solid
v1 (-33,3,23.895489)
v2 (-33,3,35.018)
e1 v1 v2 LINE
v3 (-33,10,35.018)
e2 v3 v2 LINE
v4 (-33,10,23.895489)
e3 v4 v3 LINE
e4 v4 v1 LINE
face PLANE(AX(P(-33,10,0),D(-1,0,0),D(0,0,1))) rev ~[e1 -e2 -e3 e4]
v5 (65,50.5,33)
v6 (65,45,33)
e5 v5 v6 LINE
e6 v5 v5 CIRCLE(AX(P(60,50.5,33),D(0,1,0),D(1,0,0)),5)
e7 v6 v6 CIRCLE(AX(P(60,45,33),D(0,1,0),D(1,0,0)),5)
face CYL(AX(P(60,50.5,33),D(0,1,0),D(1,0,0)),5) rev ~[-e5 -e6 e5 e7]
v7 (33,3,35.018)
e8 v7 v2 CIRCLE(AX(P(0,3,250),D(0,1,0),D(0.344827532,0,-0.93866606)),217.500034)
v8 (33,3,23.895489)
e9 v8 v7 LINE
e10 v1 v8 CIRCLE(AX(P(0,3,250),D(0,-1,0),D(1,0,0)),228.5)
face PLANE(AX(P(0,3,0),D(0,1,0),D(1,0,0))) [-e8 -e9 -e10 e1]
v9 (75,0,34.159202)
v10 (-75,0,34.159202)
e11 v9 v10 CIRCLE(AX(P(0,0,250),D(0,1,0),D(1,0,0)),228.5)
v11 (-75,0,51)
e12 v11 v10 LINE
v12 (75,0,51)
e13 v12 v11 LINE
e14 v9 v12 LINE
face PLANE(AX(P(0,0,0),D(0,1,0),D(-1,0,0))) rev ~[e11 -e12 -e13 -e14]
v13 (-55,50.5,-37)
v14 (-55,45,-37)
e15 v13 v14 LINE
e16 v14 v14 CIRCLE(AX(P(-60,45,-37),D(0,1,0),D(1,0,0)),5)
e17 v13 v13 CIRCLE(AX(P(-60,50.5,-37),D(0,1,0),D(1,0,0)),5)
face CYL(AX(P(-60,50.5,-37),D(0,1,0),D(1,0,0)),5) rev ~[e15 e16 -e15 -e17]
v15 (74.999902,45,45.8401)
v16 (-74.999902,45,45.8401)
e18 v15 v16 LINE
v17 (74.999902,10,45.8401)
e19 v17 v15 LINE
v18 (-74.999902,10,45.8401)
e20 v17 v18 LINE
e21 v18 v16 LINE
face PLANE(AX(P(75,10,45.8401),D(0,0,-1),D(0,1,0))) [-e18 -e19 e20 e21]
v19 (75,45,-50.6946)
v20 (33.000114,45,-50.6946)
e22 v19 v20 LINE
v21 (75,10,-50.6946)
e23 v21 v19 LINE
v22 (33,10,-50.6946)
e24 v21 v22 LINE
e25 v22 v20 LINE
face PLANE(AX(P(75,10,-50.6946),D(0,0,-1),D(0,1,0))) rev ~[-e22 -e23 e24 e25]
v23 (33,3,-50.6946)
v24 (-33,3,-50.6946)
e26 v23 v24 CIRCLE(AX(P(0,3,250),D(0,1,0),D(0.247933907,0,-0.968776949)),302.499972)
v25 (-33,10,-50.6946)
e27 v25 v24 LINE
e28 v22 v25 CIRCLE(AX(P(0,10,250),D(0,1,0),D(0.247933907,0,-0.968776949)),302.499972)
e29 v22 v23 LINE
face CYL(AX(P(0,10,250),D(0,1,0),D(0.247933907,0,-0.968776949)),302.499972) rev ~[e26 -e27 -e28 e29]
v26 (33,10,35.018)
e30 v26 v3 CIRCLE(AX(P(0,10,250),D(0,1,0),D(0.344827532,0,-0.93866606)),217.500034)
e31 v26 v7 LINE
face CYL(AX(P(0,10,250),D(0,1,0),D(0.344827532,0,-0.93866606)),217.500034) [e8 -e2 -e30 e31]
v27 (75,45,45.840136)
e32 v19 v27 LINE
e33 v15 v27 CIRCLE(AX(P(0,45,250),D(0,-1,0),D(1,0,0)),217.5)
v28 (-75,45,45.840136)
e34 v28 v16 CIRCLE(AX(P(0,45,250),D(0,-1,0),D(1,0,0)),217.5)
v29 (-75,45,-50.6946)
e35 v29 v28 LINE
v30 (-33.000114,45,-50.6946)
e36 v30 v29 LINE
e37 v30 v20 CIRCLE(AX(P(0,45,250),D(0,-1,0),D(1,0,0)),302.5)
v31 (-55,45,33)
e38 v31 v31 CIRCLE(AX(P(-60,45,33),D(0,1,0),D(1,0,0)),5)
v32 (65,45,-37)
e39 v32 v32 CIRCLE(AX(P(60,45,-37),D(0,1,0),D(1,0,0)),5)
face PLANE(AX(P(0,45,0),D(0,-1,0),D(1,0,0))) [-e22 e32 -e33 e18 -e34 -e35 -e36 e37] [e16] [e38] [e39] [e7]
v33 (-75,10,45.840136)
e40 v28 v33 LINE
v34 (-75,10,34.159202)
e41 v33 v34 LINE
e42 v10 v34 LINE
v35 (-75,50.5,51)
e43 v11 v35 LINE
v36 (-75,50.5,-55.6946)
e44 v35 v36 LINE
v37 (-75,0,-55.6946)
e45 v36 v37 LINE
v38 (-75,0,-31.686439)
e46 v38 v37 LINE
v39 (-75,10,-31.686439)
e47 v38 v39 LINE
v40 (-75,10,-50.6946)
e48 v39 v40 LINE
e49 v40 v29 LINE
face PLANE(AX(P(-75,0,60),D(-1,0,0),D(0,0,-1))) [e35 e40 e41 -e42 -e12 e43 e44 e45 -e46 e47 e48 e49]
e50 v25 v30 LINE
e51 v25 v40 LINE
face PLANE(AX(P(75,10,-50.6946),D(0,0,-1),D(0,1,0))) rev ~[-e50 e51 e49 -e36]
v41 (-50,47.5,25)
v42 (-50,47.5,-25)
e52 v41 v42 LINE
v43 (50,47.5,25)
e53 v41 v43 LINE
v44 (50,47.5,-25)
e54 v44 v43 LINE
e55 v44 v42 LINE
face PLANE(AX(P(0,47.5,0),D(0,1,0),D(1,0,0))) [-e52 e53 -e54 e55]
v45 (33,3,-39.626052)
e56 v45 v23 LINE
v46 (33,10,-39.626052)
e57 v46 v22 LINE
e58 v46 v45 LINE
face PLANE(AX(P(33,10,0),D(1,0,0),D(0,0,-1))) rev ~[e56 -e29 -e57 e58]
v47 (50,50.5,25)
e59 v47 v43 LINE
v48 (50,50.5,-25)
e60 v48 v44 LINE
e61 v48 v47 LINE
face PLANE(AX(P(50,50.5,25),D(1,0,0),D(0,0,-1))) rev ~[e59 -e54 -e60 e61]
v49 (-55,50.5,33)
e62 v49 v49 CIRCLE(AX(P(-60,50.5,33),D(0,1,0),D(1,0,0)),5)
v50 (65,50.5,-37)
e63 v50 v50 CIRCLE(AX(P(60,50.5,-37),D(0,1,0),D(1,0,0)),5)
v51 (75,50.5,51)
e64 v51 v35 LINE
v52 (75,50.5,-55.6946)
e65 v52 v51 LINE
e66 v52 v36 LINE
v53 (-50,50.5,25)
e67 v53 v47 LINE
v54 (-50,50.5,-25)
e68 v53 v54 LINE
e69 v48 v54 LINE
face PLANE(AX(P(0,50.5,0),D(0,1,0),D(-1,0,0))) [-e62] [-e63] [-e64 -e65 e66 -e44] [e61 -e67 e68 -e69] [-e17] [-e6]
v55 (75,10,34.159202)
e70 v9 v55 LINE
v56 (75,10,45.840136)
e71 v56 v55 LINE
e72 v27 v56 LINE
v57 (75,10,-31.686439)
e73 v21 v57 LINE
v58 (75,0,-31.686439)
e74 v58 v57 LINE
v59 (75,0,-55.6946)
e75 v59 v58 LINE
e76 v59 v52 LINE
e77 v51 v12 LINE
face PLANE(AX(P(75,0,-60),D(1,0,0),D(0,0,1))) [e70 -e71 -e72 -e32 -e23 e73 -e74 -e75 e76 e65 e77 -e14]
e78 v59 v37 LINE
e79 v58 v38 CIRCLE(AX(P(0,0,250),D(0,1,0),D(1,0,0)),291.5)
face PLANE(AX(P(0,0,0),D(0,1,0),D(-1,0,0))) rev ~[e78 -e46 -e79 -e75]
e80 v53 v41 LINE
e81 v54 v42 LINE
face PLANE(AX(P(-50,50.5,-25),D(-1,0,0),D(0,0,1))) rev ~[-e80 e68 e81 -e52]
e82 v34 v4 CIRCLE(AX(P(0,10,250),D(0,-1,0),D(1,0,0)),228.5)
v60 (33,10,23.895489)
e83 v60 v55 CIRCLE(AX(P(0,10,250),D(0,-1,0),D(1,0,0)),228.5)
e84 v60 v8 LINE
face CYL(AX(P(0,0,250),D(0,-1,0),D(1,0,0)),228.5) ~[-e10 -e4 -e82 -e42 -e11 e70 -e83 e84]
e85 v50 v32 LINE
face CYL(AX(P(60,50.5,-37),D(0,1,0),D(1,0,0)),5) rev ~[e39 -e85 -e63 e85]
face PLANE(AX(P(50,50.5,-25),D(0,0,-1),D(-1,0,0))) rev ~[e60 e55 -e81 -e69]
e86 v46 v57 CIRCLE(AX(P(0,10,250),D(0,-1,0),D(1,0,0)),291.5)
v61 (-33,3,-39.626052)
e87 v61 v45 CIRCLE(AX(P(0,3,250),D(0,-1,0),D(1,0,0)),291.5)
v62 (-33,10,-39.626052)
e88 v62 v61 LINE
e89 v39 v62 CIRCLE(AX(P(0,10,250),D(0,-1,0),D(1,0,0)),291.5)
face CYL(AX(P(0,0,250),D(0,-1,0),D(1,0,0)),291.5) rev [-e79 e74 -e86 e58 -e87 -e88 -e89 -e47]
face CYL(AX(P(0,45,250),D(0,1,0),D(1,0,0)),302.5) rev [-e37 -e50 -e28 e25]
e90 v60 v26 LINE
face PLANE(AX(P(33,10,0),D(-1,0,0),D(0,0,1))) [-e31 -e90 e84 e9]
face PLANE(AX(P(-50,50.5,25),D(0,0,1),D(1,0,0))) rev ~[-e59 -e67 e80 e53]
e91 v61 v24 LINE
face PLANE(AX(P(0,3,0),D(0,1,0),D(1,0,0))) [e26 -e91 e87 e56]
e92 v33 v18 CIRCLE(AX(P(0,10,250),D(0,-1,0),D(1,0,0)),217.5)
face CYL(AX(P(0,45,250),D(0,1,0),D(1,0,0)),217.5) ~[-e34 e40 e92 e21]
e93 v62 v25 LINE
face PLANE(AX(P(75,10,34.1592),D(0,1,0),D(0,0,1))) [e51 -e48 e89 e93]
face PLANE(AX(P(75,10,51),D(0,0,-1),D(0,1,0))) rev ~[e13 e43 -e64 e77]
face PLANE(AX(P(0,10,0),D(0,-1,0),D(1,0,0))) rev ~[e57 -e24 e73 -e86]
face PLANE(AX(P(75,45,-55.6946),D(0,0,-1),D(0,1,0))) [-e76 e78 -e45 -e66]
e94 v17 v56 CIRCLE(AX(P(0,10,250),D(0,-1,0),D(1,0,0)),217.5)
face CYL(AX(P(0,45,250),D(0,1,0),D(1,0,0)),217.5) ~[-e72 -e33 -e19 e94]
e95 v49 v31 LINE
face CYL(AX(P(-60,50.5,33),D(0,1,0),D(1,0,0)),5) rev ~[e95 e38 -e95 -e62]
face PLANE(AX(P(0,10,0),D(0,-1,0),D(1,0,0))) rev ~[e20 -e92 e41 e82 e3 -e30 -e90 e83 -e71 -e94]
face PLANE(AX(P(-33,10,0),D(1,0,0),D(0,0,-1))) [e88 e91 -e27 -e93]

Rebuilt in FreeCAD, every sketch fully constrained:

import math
import FreeCAD as App
import Part
import Sketcher


def add_polygon(sketch, points):
    """Adds a closed chain of lines whose ends are joined by coincident constraints."""
    first, n = sketch.GeometryCount, len(points)
    for a, b in zip(points, points[1:] + points[:1]):
        sketch.addGeometry(Part.LineSegment(App.Vector(*a, 0), App.Vector(*b, 0)), False)
    for i in range(n):
        sketch.addConstraint(Sketcher.Constraint("Coincident", first + i, 2, first + (i + 1) % n, 1))

doc = App.newDocument("Part")
params = doc.addObject("Spreadsheet::Sheet", "Params")
for row, (alias, value) in enumerate([
    ("sketch1_width", "150 mm"),
    ("sketch1_height", "120 mm"),
    ("pad1_length", "50.5 mm"),
    ("sketch2_radius", "228.5 mm"),
    ("sketch2_radius2", "291.5 mm"),
    ("pocket1_length", "45 mm"),
    ("sketch3_radius", "302.5 mm"),
    ("sketch3_radius2", "217.5 mm"),
    ("pocket2_length", "35 mm"),
    ("sketch4_height", "50 mm"),
    ("pocket3_length", "3 mm"),
    ("sketch5_radius", "302.5 mm"),
    ("sketch5_radius2", "217.5 mm"),
    ("pocket4_length", "7 mm"),
    ("sketch6_width", "35 mm"),
    ("sketch6_height", "9 mm"),
    ("sketch6_width2", "50.5 mm"),
    ("pocket5_length", "150 mm"),
    ("sketch7_diameter", "10 mm"),
    ("pocket6_length", "10 mm"),
], start=1):
    params.set(f"A{row}", alias)
    params.set(f"B{row}", "=" + value)
    params.setAlias(f"B{row}", alias)

body = doc.addObject("PartDesign::Body", "Body")

# Sketch on XZ plane
sketch1 = body.newObject("Sketcher::SketchObject", "Sketch")
sketch1.AttachmentSupport = (doc.getObject("XZ_Plane"), [""])
sketch1.MapMode = "FlatFace"
add_polygon(sketch1, [(75, -60), (-75, -60), (-75, 60), (75, 60)])  # lines 0-3
sketch1.addConstraint(Sketcher.Constraint("Horizontal", 0))
sketch1.addConstraint(Sketcher.Constraint("Vertical", 1))
sketch1.addConstraint(Sketcher.Constraint("Horizontal", 2))
sketch1.addConstraint(Sketcher.Constraint("Vertical", 3))
sketch1.addConstraint(Sketcher.Constraint("Symmetric", 0, 2, 2, 2, -1, 1))
sketch1.addConstraint(Sketcher.Constraint("DistanceX", 0, 2, 0, 1, 150.0))
sketch1.addConstraint(Sketcher.Constraint("DistanceY", 1, 1, 1, 2, 120.0))
sketch1.setExpression("Constraints[9]", "Params.sketch1_width")
sketch1.setExpression("Constraints[10]", "Params.sketch1_height")
pad1 = body.newObject("PartDesign::Pad", "Pad")
pad1.Profile = sketch1
pad1.setExpression("Length", "Params.pad1_length")
pad1.Reversed = True

# Sketch on XZ plane
sketch2 = body.newObject("Sketcher::SketchObject", "Sketch001")
sketch2.AttachmentSupport = (doc.getObject("XZ_Plane"), [""])
sketch2.MapMode = "FlatFace"
sketch2.addGeometry(Part.ArcOfCircle(Part.Circle(App.Vector(0, 250, 0), App.Vector(0, 0, 1), 228), math.radians(-109), math.radians(-71)), False)
sketch2.addGeometry(Part.LineSegment(App.Vector(75, 34, 0), App.Vector(75, -32, 0)), False)
sketch2.addGeometry(Part.ArcOfCircle(Part.Circle(App.Vector(0, 250, 0), App.Vector(0, 0, 1), 292), math.radians(-105), math.radians(-75)), False)
sketch2.addGeometry(Part.LineSegment(App.Vector(-75, -32, 0), App.Vector(-75, 34, 0)), False)
sketch2.addConstraint(Sketcher.Constraint("Coincident", 0, 2, 1, 1))
sketch2.addConstraint(Sketcher.Constraint("Coincident", 1, 2, 2, 2))
sketch2.addConstraint(Sketcher.Constraint("Coincident", 2, 1, 3, 1))
sketch2.addConstraint(Sketcher.Constraint("Coincident", 3, 2, 0, 1))
sketch2.addConstraint(Sketcher.Constraint("Vertical", 1))
sketch2.addConstraint(Sketcher.Constraint("Vertical", 3))
sketch2.addConstraint(Sketcher.Constraint("Coincident", 2, 3, 0, 3))
sketch2.addConstraint(Sketcher.Constraint("Symmetric", 1, 2, 2, 1, -2))
sketch2.addConstraint(Sketcher.Constraint("Radius", 0, 228.5))
sketch2.addConstraint(Sketcher.Constraint("Radius", 2, 291.5))
sketch2.addConstraint(Sketcher.Constraint("DistanceY", -1, 1, 0, 3, 250.0))
sketch2.addConstraint(Sketcher.Constraint("DistanceX", -1, 1, 0, 2, 75.0))
sketch2.setExpression("Constraints[8]", "Params.sketch2_radius")
sketch2.setExpression("Constraints[9]", "Params.sketch2_radius2")
pocket1 = body.newObject("PartDesign::Pocket", "Pocket")
pocket1.Profile = sketch2
pocket1.setExpression("Length", "Params.pocket1_length")

# Sketch on XZ plane
sketch3 = body.newObject("Sketcher::SketchObject", "Sketch002")
sketch3.AttachmentSupport = (doc.getObject("XZ_Plane"), [""])
sketch3.MapMode = "FlatFace"
sketch3.AttachmentOffset = App.Placement(App.Vector(0, 0, -45), App.Rotation())
sketch3.addGeometry(Part.LineSegment(App.Vector(-75, 46, 0), App.Vector(-75, -43, 0)), False)
sketch3.addGeometry(Part.ArcOfCircle(Part.Circle(App.Vector(0, 250, 0), App.Vector(0, 0, 1), 302), math.radians(-104), math.radians(-76)), False)
sketch3.addGeometry(Part.LineSegment(App.Vector(75, -43, 0), App.Vector(75, 46, 0)), False)
sketch3.addGeometry(Part.ArcOfCircle(Part.Circle(App.Vector(0, 250, 0), App.Vector(0, 0, 1), 218), math.radians(-110), math.radians(-70)), False)
sketch3.addConstraint(Sketcher.Constraint("Coincident", 0, 2, 1, 1))
sketch3.addConstraint(Sketcher.Constraint("Coincident", 1, 2, 2, 1))
sketch3.addConstraint(Sketcher.Constraint("Coincident", 2, 2, 3, 2))
sketch3.addConstraint(Sketcher.Constraint("Coincident", 3, 1, 0, 1))
sketch3.addConstraint(Sketcher.Constraint("Vertical", 0))
sketch3.addConstraint(Sketcher.Constraint("Vertical", 2))
sketch3.addConstraint(Sketcher.Constraint("Coincident", 3, 3, 1, 3))
sketch3.addConstraint(Sketcher.Constraint("Symmetric", 0, 2, 1, 2, -2))
sketch3.addConstraint(Sketcher.Constraint("Radius", 1, 302.5))
sketch3.addConstraint(Sketcher.Constraint("Radius", 3, 217.5))
sketch3.addConstraint(Sketcher.Constraint("DistanceY", -1, 1, 1, 3, 250.0))
sketch3.addConstraint(Sketcher.Constraint("DistanceX", 0, 2, -1, 1, 75.0))
sketch3.setExpression("Constraints[8]", "Params.sketch3_radius")
sketch3.setExpression("Constraints[9]", "Params.sketch3_radius2")
pocket2 = body.newObject("PartDesign::Pocket", "Pocket001")
pocket2.Profile = sketch3
pocket2.setExpression("Length", "Params.pocket2_length")
pocket2.Reversed = True

# Sketch on XZ plane
sketch4 = body.newObject("Sketcher::SketchObject", "Sketch003")
sketch4.AttachmentSupport = (doc.getObject("XZ_Plane"), [""])
sketch4.MapMode = "FlatFace"
sketch4.AttachmentOffset = App.Placement(App.Vector(0, 0, -50.5), App.Rotation())
add_polygon(sketch4, [(-50, -25), (-50, 25), (50, 25), (50, -25)])  # lines 0-3
sketch4.addConstraint(Sketcher.Constraint("Vertical", 0))
sketch4.addConstraint(Sketcher.Constraint("Horizontal", 1))
sketch4.addConstraint(Sketcher.Constraint("Vertical", 2))
sketch4.addConstraint(Sketcher.Constraint("Horizontal", 3))
sketch4.addConstraint(Sketcher.Constraint("Symmetric", 0, 2, 2, 2, -1, 1))
sketch4.addConstraint(Sketcher.Constraint("DistanceY", 0, 1, 0, 2, 50.0))
sketch4.addConstraint(Sketcher.Constraint("DistanceX", 0, 2, -1, 1, 50.0))
sketch4.setExpression("Constraints[9]", "Params.sketch4_height")
pocket3 = body.newObject("PartDesign::Pocket", "Pocket002")
pocket3.Profile = sketch4
pocket3.setExpression("Length", "Params.pocket3_length")
pocket3.Reversed = True

# Sketch on XZ plane
sketch5 = body.newObject("Sketcher::SketchObject", "Sketch004")
sketch5.AttachmentSupport = (doc.getObject("XZ_Plane"), [""])
sketch5.MapMode = "FlatFace"
sketch5.AttachmentOffset = App.Placement(App.Vector(0, 0, -10), App.Rotation())
sketch5.addGeometry(Part.LineSegment(App.Vector(33, 35, 0), App.Vector(33, -51, 0)), False)
sketch5.addGeometry(Part.ArcOfCircle(Part.Circle(App.Vector(0, 250, 0), App.Vector(0, 0, 1), 302), math.radians(-96.26), math.radians(-83.74)), False)
sketch5.addGeometry(Part.LineSegment(App.Vector(-33, -51, 0), App.Vector(-33, 35, 0)), False)
sketch5.addGeometry(Part.ArcOfCircle(Part.Circle(App.Vector(0, 250, 0), App.Vector(0, 0, 1), 218), math.radians(-98.73), math.radians(-81.27)), False)
sketch5.addConstraint(Sketcher.Constraint("Coincident", 0, 2, 1, 2))
sketch5.addConstraint(Sketcher.Constraint("Coincident", 1, 1, 2, 1))
sketch5.addConstraint(Sketcher.Constraint("Coincident", 2, 2, 3, 1))
sketch5.addConstraint(Sketcher.Constraint("Coincident", 3, 2, 0, 1))
sketch5.addConstraint(Sketcher.Constraint("Vertical", 0))
sketch5.addConstraint(Sketcher.Constraint("Vertical", 2))
sketch5.addConstraint(Sketcher.Constraint("Coincident", 3, 3, 1, 3))
sketch5.addConstraint(Sketcher.Constraint("Symmetric", 0, 2, 1, 1, -2))
sketch5.addConstraint(Sketcher.Constraint("DistanceX", -1, 1, 0, 2, 33.0))
sketch5.addConstraint(Sketcher.Constraint("Radius", 1, 302.5))
sketch5.addConstraint(Sketcher.Constraint("Radius", 3, 217.5))
sketch5.addConstraint(Sketcher.Constraint("DistanceY", -1, 1, 1, 3, 250.0))
sketch5.setExpression("Constraints[9]", "Params.sketch5_radius")
sketch5.setExpression("Constraints[10]", "Params.sketch5_radius2")
pocket4 = body.newObject("PartDesign::Pocket", "Pocket003")
pocket4.Profile = sketch5
pocket4.setExpression("Length", "Params.pocket4_length")
pocket4.Reversed = True

# Sketch on YZ plane
sketch6 = body.newObject("Sketcher::SketchObject", "Sketch005")
sketch6.AttachmentSupport = (doc.getObject("YZ_Plane"), [""])
sketch6.MapMode = "FlatFace"
sketch6.AttachmentOffset = App.Placement(App.Vector(0, 0, 75), App.Rotation())
add_polygon(sketch6, [(10, 45.8), (10, -50.7), (45, -50.7), (45, 45.8)])  # lines 0-3
add_polygon(sketch6, [(50.5, 51), (50.5, 60), (0, 60), (0, 51)])  # lines 4-7
add_polygon(sketch6, [(50.5, -55.7), (0, -55.7), (0, -60), (50.5, -60)])  # lines 8-11
sketch6.addConstraint(Sketcher.Constraint("Vertical", 0))
sketch6.addConstraint(Sketcher.Constraint("Horizontal", 1))
sketch6.addConstraint(Sketcher.Constraint("Vertical", 2))
sketch6.addConstraint(Sketcher.Constraint("Horizontal", 3))
sketch6.addConstraint(Sketcher.Constraint("Vertical", 4))
sketch6.addConstraint(Sketcher.Constraint("Horizontal", 5))
sketch6.addConstraint(Sketcher.Constraint("Vertical", 6))
sketch6.addConstraint(Sketcher.Constraint("Horizontal", 7))
sketch6.addConstraint(Sketcher.Constraint("Horizontal", 8))
sketch6.addConstraint(Sketcher.Constraint("Vertical", 9))
sketch6.addConstraint(Sketcher.Constraint("Horizontal", 10))
sketch6.addConstraint(Sketcher.Constraint("Vertical", 11))
sketch6.addConstraint(Sketcher.Constraint("Symmetric", 5, 2, 9, 2, -1, 1))
sketch6.addConstraint(Sketcher.Constraint("PointOnObject", 5, 2, -2))
sketch6.addConstraint(Sketcher.Constraint("Vertical", 7, 2, 10, 2))
sketch6.addConstraint(Sketcher.Constraint("DistanceY", -1, 1, 6, 2, 51.0))
sketch6.addConstraint(Sketcher.Constraint("DistanceY", 8, 2, 0, 2, 5.0))
sketch6.addConstraint(Sketcher.Constraint("DistanceX", 1, 1, 1, 2, 35.0))
sketch6.addConstraint(Sketcher.Constraint("DistanceY", 4, 1, 4, 2, 9.0))
sketch6.addConstraint(Sketcher.Constraint("DistanceX", 5, 2, 5, 1, 50.5))
sketch6.addConstraint(Sketcher.Constraint("DistanceX", -1, 1, 0, 2, 10.0))
sketch6.addConstraint(Sketcher.Constraint("DistanceY", -1, 1, 2, 2, 45.84))
sketch6.addConstraint(Sketcher.Constraint("DistanceY", 0, 2, 0, 1, 96.5347))
sketch6.setExpression("Constraints[29]", "Params.sketch6_width")
sketch6.setExpression("Constraints[30]", "Params.sketch6_height")
sketch6.setExpression("Constraints[31]", "Params.sketch6_width2")
pocket5 = body.newObject("PartDesign::Pocket", "Pocket004")
pocket5.Profile = sketch6
pocket5.setExpression("Length", "Params.pocket5_length")

# Sketch on XZ plane
sketch7 = body.newObject("Sketcher::SketchObject", "Sketch006")
sketch7.AttachmentSupport = (doc.getObject("XZ_Plane"), [""])
sketch7.MapMode = "FlatFace"
sketch7.AttachmentOffset = App.Placement(App.Vector(0, 0, -50.5), App.Rotation())
sketch7.addGeometry(Part.Circle(App.Vector(60, 33, 0), App.Vector(0, 0, 1), 5), False)
sketch7.addGeometry(Part.Circle(App.Vector(60, -37, 0), App.Vector(0, 0, 1), 5), False)
sketch7.addGeometry(Part.Circle(App.Vector(-60, 33, 0), App.Vector(0, 0, 1), 5), False)
sketch7.addGeometry(Part.Circle(App.Vector(-60, -37, 0), App.Vector(0, 0, 1), 5), False)
sketch7.addConstraint(Sketcher.Constraint("Equal", 0, 1))
sketch7.addConstraint(Sketcher.Constraint("Equal", 1, 2))
sketch7.addConstraint(Sketcher.Constraint("Equal", 2, 3))
sketch7.addConstraint(Sketcher.Constraint("Symmetric", 0, 3, 2, 3, -2))
sketch7.addConstraint(Sketcher.Constraint("Symmetric", 1, 3, 3, 3, -2))
sketch7.addConstraint(Sketcher.Constraint("Vertical", 0, 3, 1, 3))
sketch7.addConstraint(Sketcher.Constraint("Diameter", 0, 10.0))
sketch7.addConstraint(Sketcher.Constraint("DistanceX", -1, 1, 0, 3, 60.0))
sketch7.addConstraint(Sketcher.Constraint("DistanceY", -1, 1, 0, 3, 33.0))
sketch7.addConstraint(Sketcher.Constraint("DistanceY", 1, 3, -1, 1, 37.0))
sketch7.setExpression("Constraints[6]", "Params.sketch7_diameter")
pocket6 = body.newObject("PartDesign::Pocket", "Pocket005")
pocket6.Profile = sketch7
pocket6.setExpression("Length", "Params.pocket6_length")
pocket6.Reversed = True

doc.recompute()
